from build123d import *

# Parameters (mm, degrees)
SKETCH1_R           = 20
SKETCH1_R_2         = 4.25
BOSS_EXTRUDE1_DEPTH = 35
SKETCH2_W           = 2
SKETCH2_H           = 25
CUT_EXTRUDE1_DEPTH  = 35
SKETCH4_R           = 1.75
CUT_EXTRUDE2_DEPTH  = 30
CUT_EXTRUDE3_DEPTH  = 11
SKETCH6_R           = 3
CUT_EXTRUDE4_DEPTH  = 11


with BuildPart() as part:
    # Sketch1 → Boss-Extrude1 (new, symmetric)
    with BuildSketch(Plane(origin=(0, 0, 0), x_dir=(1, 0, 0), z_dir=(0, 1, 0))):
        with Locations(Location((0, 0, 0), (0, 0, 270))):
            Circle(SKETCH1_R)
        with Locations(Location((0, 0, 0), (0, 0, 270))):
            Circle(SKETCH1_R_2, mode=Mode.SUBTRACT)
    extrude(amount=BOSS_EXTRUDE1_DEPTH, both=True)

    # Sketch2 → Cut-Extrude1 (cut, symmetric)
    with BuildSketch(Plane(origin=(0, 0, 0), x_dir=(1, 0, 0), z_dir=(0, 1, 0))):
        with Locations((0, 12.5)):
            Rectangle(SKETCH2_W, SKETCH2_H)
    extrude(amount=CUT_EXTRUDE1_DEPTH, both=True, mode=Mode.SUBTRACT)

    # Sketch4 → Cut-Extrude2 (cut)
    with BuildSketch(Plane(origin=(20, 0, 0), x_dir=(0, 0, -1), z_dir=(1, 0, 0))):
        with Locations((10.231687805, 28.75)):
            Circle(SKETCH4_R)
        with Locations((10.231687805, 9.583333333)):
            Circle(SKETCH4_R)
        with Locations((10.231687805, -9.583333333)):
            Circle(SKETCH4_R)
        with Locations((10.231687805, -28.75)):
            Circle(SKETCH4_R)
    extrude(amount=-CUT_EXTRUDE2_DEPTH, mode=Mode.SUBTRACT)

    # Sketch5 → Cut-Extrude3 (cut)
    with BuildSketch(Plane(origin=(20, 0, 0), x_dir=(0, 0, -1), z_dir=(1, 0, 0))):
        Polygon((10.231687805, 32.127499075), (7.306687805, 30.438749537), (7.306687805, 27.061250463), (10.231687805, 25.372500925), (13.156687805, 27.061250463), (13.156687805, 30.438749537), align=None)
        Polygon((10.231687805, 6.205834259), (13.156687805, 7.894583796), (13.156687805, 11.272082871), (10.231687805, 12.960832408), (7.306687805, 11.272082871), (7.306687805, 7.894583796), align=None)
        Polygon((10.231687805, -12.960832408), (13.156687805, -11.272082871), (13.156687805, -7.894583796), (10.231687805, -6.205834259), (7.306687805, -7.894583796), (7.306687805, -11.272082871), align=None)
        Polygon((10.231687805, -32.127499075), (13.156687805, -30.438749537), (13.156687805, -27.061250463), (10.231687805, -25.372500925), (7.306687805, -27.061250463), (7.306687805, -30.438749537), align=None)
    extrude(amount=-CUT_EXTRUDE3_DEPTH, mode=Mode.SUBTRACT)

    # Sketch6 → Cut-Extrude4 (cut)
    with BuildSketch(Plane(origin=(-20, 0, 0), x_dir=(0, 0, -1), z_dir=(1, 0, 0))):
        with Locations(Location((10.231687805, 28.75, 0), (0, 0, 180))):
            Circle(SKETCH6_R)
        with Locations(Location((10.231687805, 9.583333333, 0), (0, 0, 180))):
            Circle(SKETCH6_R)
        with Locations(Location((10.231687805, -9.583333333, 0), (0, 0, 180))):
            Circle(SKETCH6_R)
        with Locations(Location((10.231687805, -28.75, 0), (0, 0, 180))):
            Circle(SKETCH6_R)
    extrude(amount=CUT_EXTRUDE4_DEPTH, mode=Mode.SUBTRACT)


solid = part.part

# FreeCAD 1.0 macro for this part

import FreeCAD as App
import Part
import Sketcher
from FreeCAD import Vector
Q = App.Units.Quantity

doc = App.newDocument("Part")
body = doc.addObject("PartDesign::Body", "Body")

sketch1 = body.newObject("Sketcher::SketchObject", "Sketch")
sketch1.AttachmentSupport = (doc.getObject("XZ_Plane"), [""])
sketch1.MapMode = "FlatFace"
sketch1.addGeometry(Part.Circle(Vector(0, 0, 0), Vector(0, 0, 1), 20), False)
sketch1.addGeometry(Part.Circle(Vector(0, 0, 0), Vector(0, 0, 1), 4.25), False)
sketch1.addConstraint(Sketcher.Constraint("Coincident", 0, 3, -1, 1))
sketch1.addConstraint(Sketcher.Constraint("Coincident", 1, 3, -1, 1))
sketch1.addConstraint(Sketcher.Constraint("Diameter", 0, 40.0))
sketch1.addConstraint(Sketcher.Constraint("Diameter", 1, 8.5))
pad1 = body.newObject("PartDesign::Pad", "Pad")
pad1.Profile = sketch1
pad1.Length = 70
pad1.Midplane = True

sketch2 = body.newObject("Sketcher::SketchObject", "Sketch001")
sketch2.AttachmentSupport = (doc.getObject("XZ_Plane"), [""])
sketch2.MapMode = "FlatFace"
sketch2.addGeometry(Part.LineSegment(Vector(-1, -25, 0), Vector(-1, 0, 0)), False)
sketch2.addGeometry(Part.LineSegment(Vector(-1, 0, 0), Vector(1, 0, 0)), False)
sketch2.addGeometry(Part.LineSegment(Vector(1, 0, 0), Vector(1, -25, 0)), False)
sketch2.addGeometry(Part.LineSegment(Vector(1, -25, 0), Vector(-1, -25, 0)), False)
sketch2.addConstraint(Sketcher.Constraint("Coincident", 0, 2, 1, 1))
sketch2.addConstraint(Sketcher.Constraint("Coincident", 1, 2, 2, 1))
sketch2.addConstraint(Sketcher.Constraint("Coincident", 2, 2, 3, 1))
sketch2.addConstraint(Sketcher.Constraint("Coincident", 3, 2, 0, 1))
sketch2.addConstraint(Sketcher.Constraint("Vertical", 0))
sketch2.addConstraint(Sketcher.Constraint("Horizontal", 1))
sketch2.addConstraint(Sketcher.Constraint("Vertical", 2))
sketch2.addConstraint(Sketcher.Constraint("Horizontal", 3))
sketch2.addConstraint(Sketcher.Constraint("Symmetric", 0, 2, 1, 2, -1, 1))
sketch2.addConstraint(Sketcher.Constraint("DistanceX", 1, 1, 1, 2, 2.0))
sketch2.addConstraint(Sketcher.Constraint("DistanceY", 0, 1, 0, 2, 25.0))
pocket1 = body.newObject("PartDesign::Pocket", "Pocket")
pocket1.Profile = sketch2
pocket1.Length = 70
pocket1.Midplane = True

sketch3 = body.newObject("Sketcher::SketchObject", "Sketch002")
sketch3.AttachmentSupport = (doc.getObject("YZ_Plane"), [""])
sketch3.MapMode = "FlatFace"
sketch3.AttachmentOffset = App.Placement(Vector(0, 0, 20), App.Rotation())
sketch3.addGeometry(Part.Circle(Vector(28.75, -10.231688, 0), Vector(0, 0, 1), 1.75), False)
sketch3.addGeometry(Part.Circle(Vector(9.583333, -10.231688, 0), Vector(0, 0, 1), 1.75), False)
sketch3.addGeometry(Part.Circle(Vector(-9.583333, -10.231688, 0), Vector(0, 0, 1), 1.75), False)
sketch3.addGeometry(Part.Circle(Vector(-28.75, -10.231688, 0), Vector(0, 0, 1), 1.75), False)
sketch3.addConstraint(Sketcher.Constraint("Equal", 0, 1))
sketch3.addConstraint(Sketcher.Constraint("Equal", 1, 2))
sketch3.addConstraint(Sketcher.Constraint("Equal", 2, 3))
sketch3.addConstraint(Sketcher.Constraint("Symmetric", 1, 3, 2, 3, -2))
sketch3.addConstraint(Sketcher.Constraint("Symmetric", 0, 3, 3, 3, -2))
sketch3.addConstraint(Sketcher.Constraint("Horizontal", 0, 3, 1, 3))
sketch3.addConstraint(Sketcher.Constraint("Diameter", 0, 3.5))
sketch3.addConstraint(Sketcher.Constraint("DistanceX", 3, 3, 0, 3, 57.5))
sketch3.addConstraint(Sketcher.Constraint("DistanceY", 0, 3, -1, 1, 10.231688))
sketch3.addConstraint(Sketcher.Constraint("DistanceX", -1, 1, 1, 3, 9.583333))
pocket2 = body.newObject("PartDesign::Pocket", "Pocket001")
pocket2.Profile = sketch3
pocket2.Length = 30

sketch4 = body.newObject("Sketcher::SketchObject", "Sketch003")
sketch4.AttachmentSupport = (doc.getObject("YZ_Plane"), [""])
sketch4.MapMode = "FlatFace"
sketch4.AttachmentOffset = App.Placement(Vector(0, 0, 20), App.Rotation())
sketch4.addGeometry(Part.LineSegment(Vector(32.127499, -10.231688, 0), Vector(30.43875, -7.306688, 0)), False)
sketch4.addGeometry(Part.LineSegment(Vector(30.43875, -7.306688, 0), Vector(27.06125, -7.306688, 0)), False)
sketch4.addGeometry(Part.LineSegment(Vector(27.06125, -7.306688, 0), Vector(25.372501, -10.231688, 0)), False)
sketch4.addGeometry(Part.LineSegment(Vector(25.372501, -10.231688, 0), Vector(27.06125, -13.156688, 0)), False)
sketch4.addGeometry(Part.LineSegment(Vector(27.06125, -13.156688, 0), Vector(30.43875, -13.156688, 0)), False)
sketch4.addGeometry(Part.LineSegment(Vector(30.43875, -13.156688, 0), Vector(32.127499, -10.231688, 0)), False)
sketch4.addGeometry(Part.LineSegment(Vector(6.205834, -10.231688, 0), Vector(7.894584, -13.156688, 0)), False)
sketch4.addGeometry(Part.LineSegment(Vector(7.894584, -13.156688, 0), Vector(11.272083, -13.156688, 0)), False)
sketch4.addGeometry(Part.LineSegment(Vector(11.272083, -13.156688, 0), Vector(12.960832, -10.231688, 0)), False)
sketch4.addGeometry(Part.LineSegment(Vector(12.960832, -10.231688, 0), Vector(11.272083, -7.306688, 0)), False)
sketch4.addGeometry(Part.LineSegment(Vector(11.272083, -7.306688, 0), Vector(7.894584, -7.306688, 0)), False)
sketch4.addGeometry(Part.LineSegment(Vector(7.894584, -7.306688, 0), Vector(6.205834, -10.231688, 0)), False)
sketch4.addGeometry(Part.LineSegment(Vector(-12.960832, -10.231688, 0), Vector(-11.272083, -13.156688, 0)), False)
sketch4.addGeometry(Part.LineSegment(Vector(-11.272083, -13.156688, 0), Vector(-7.894584, -13.156688, 0)), False)
sketch4.addGeometry(Part.LineSegment(Vector(-7.894584, -13.156688, 0), Vector(-6.205834, -10.231688, 0)), False)
sketch4.addGeometry(Part.LineSegment(Vector(-6.205834, -10.231688, 0), Vector(-7.894584, -7.306688, 0)), False)
sketch4.addGeometry(Part.LineSegment(Vector(-7.894584, -7.306688, 0), Vector(-11.272083, -7.306688, 0)), False)
sketch4.addGeometry(Part.LineSegment(Vector(-11.272083, -7.306688, 0), Vector(-12.960832, -10.231688, 0)), False)
sketch4.addGeometry(Part.LineSegment(Vector(-32.127499, -10.231688, 0), Vector(-30.43875, -13.156688, 0)), False)
sketch4.addGeometry(Part.LineSegment(Vector(-30.43875, -13.156688, 0), Vector(-27.06125, -13.156688, 0)), False)
sketch4.addGeometry(Part.LineSegment(Vector(-27.06125, -13.156688, 0), Vector(-25.372501, -10.231688, 0)), False)
sketch4.addGeometry(Part.LineSegment(Vector(-25.372501, -10.231688, 0), Vector(-27.06125, -7.306688, 0)), False)
sketch4.addGeometry(Part.LineSegment(Vector(-27.06125, -7.306688, 0), Vector(-30.43875, -7.306688, 0)), False)
sketch4.addGeometry(Part.LineSegment(Vector(-30.43875, -7.306688, 0), Vector(-32.127499, -10.231688, 0)), False)
sketch4.addConstraint(Sketcher.Constraint("Coincident", 0, 2, 1, 1))
sketch4.addConstraint(Sketcher.Constraint("Coincident", 1, 2, 2, 1))
sketch4.addConstraint(Sketcher.Constraint("Coincident", 2, 2, 3, 1))
sketch4.addConstraint(Sketcher.Constraint("Coincident", 3, 2, 4, 1))
sketch4.addConstraint(Sketcher.Constraint("Coincident", 4, 2, 5, 1))
sketch4.addConstraint(Sketcher.Constraint("Coincident", 5, 2, 0, 1))
sketch4.addConstraint(Sketcher.Constraint("Coincident", 6, 2, 7, 1))
sketch4.addConstraint(Sketcher.Constraint("Coincident", 7, 2, 8, 1))
sketch4.addConstraint(Sketcher.Constraint("Coincident", 8, 2, 9, 1))
sketch4.addConstraint(Sketcher.Constraint("Coincident", 9, 2, 10, 1))
sketch4.addConstraint(Sketcher.Constraint("Coincident", 10, 2, 11, 1))
sketch4.addConstraint(Sketcher.Constraint("Coincident", 11, 2, 6, 1))
sketch4.addConstraint(Sketcher.Constraint("Coincident", 12, 2, 13, 1))
sketch4.addConstraint(Sketcher.Constraint("Coincident", 13, 2, 14, 1))
sketch4.addConstraint(Sketcher.Constraint("Coincident", 14, 2, 15, 1))
sketch4.addConstraint(Sketcher.Constraint("Coincident", 15, 2, 16, 1))
sketch4.addConstraint(Sketcher.Constraint("Coincident", 16, 2, 17, 1))
sketch4.addConstraint(Sketcher.Constraint("Coincident", 17, 2, 12, 1))
sketch4.addConstraint(Sketcher.Constraint("Coincident", 18, 2, 19, 1))
sketch4.addConstraint(Sketcher.Constraint("Coincident", 19, 2, 20, 1))
sketch4.addConstraint(Sketcher.Constraint("Coincident", 20, 2, 21, 1))
sketch4.addConstraint(Sketcher.Constraint("Coincident", 21, 2, 22, 1))
sketch4.addConstraint(Sketcher.Constraint("Coincident", 22, 2, 23, 1))
sketch4.addConstraint(Sketcher.Constraint("Coincident", 23, 2, 18, 1))
sketch4.addConstraint(Sketcher.Constraint("Horizontal", 1))
sketch4.addConstraint(Sketcher.Constraint("Horizontal", 4))
sketch4.addConstraint(Sketcher.Constraint("Horizontal", 7))
sketch4.addConstraint(Sketcher.Constraint("Horizontal", 10))
sketch4.addConstraint(Sketcher.Constraint("Horizontal", 13))
sketch4.addConstraint(Sketcher.Constraint("Horizontal", 16))
sketch4.addConstraint(Sketcher.Constraint("Horizontal", 19))
sketch4.addConstraint(Sketcher.Constraint("Horizontal", 22))
sketch4.addConstraint(Sketcher.Constraint("Symmetric", 7, 2, 12, 2, -2))
sketch4.addConstraint(Sketcher.Constraint("Symmetric", 11, 2, 14, 2, -2))
sketch4.addConstraint(Sketcher.Constraint("Symmetric", 10, 2, 15, 2, -2))
sketch4.addConstraint(Sketcher.Constraint("Symmetric", 8, 2, 17, 2, -2))
sketch4.addConstraint(Sketcher.Constraint("Symmetric", 4, 2, 18, 2, -2))
sketch4.addConstraint(Sketcher.Constraint("Symmetric", 2, 2, 20, 2, -2))
sketch4.addConstraint(Sketcher.Constraint("Symmetric", 1, 2, 21, 2, -2))
sketch4.addConstraint(Sketcher.Constraint("Symmetric", 5, 2, 23, 2, -2))
sketch4.addConstraint(Sketcher.Constraint("Parallel", 0, 3))
sketch4.addConstraint(Sketcher.Constraint("Parallel", 2, 5))
sketch4.addConstraint(Sketcher.Constraint("Parallel", 3, 6))
sketch4.addConstraint(Sketcher.Constraint("Parallel", 5, 8))
sketch4.addConstraint(Sketcher.Constraint("Parallel", 6, 9))
sketch4.addConstraint(Sketcher.Constraint("Parallel", 8, 11))
sketch4.addConstraint(Sketcher.Constraint("Parallel", 9, 12))
sketch4.addConstraint(Sketcher.Constraint("Parallel", 11, 14))
sketch4.addConstraint(Sketcher.Constraint("Parallel", 14, 17))
sketch4.addConstraint(Sketcher.Constraint("Parallel", 17, 20))
sketch4.addConstraint(Sketcher.Constraint("Parallel", 20, 23))
sketch4.addConstraint(Sketcher.Constraint("Horizontal", 2, 2, 5, 2))
sketch4.addConstraint(Sketcher.Constraint("Horizontal", 4, 2, 6, 2))
sketch4.addConstraint(Sketcher.Constraint("Horizontal", 5, 2, 8, 2))
sketch4.addConstraint(Sketcher.Constraint("Horizontal", 1, 2, 9, 2))
sketch4.addConstraint(Sketcher.Constraint("Horizontal", 8, 2, 11, 2))
sketch4.addConstraint(Sketcher.Constraint("Vertical", 1, 2, 3, 2))
sketch4.addConstraint(Sketcher.Constraint("Equal", 4, 7))
sketch4.addConstraint(Sketcher.Constraint("Angle", 0, Q("120 deg")))
sketch4.addConstraint(Sketcher.Constraint("DistanceY", 3, 2, 1, 2, 5.85))
sketch4.addConstraint(Sketcher.Constraint("DistanceX", 1, 2, 1, 1, 3.377499))
sketch4.addConstraint(Sketcher.Constraint("DistanceX", -1, 1, 2, 2, 25.372501))
sketch4.addConstraint(Sketcher.Constraint("DistanceX", 7, 2, 2, 2, 14.100418))
sketch4.addConstraint(Sketcher.Constraint("DistanceY", 0, 2, -1, 1, 7.306688))
pocket3 = body.newObject("PartDesign::Pocket", "Pocket002")
pocket3.Profile = sketch4
pocket3.Length = 11

sketch5 = body.newObject("Sketcher::SketchObject", "Sketch004")
sketch5.AttachmentSupport = (doc.getObject("YZ_Plane"), [""])
sketch5.MapMode = "FlatFace"
sketch5.AttachmentOffset = App.Placement(Vector(0, 0, -20), App.Rotation())
sketch5.addGeometry(Part.Circle(Vector(28.75, -10.231688, 0), Vector(0, 0, 1), 3), False)
sketch5.addGeometry(Part.Circle(Vector(9.583333, -10.231688, 0), Vector(0, 0, 1), 3), False)
sketch5.addGeometry(Part.Circle(Vector(-9.583333, -10.231688, 0), Vector(0, 0, 1), 3), False)
sketch5.addGeometry(Part.Circle(Vector(-28.75, -10.231688, 0), Vector(0, 0, 1), 3), False)
sketch5.addConstraint(Sketcher.Constraint("Equal", 0, 1))
sketch5.addConstraint(Sketcher.Constraint("Equal", 1, 2))
sketch5.addConstraint(Sketcher.Constraint("Equal", 2, 3))
sketch5.addConstraint(Sketcher.Constraint("Symmetric", 1, 3, 2, 3, -2))
sketch5.addConstraint(Sketcher.Constraint("Symmetric", 0, 3, 3, 3, -2))
sketch5.addConstraint(Sketcher.Constraint("Horizontal", 0, 3, 1, 3))
sketch5.addConstraint(Sketcher.Constraint("Diameter", 0, 6.0))
sketch5.addConstraint(Sketcher.Constraint("DistanceX", 3, 3, 0, 3, 57.5))
sketch5.addConstraint(Sketcher.Constraint("DistanceY", 0, 3, -1, 1, 10.231688))
sketch5.addConstraint(Sketcher.Constraint("DistanceX", -1, 1, 1, 3, 9.583333))
pocket4 = body.newObject("PartDesign::Pocket", "Pocket003")
pocket4.Profile = sketch5
pocket4.Length = 11
pocket4.Reversed = True

doc.recompute()
